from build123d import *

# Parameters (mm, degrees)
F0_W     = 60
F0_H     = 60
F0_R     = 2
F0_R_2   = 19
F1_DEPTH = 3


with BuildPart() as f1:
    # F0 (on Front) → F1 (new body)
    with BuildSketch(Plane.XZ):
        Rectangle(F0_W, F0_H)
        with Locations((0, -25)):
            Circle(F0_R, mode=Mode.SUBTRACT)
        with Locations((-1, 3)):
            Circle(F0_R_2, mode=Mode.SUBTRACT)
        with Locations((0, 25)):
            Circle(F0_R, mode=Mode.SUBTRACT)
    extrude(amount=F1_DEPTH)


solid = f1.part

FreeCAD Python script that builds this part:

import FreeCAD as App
import Part
import Sketcher
from FreeCAD import Vector

doc = App.newDocument("Part")
params = doc.addObject("Spreadsheet::Sheet", "Params")
for row, (alias, value) in enumerate([
    ("sketch1_diameter", "4 mm"),
    ("sketch1_diameter2", "38 mm"),
    ("sketch1_width", "60 mm"),
    ("pad1_length", "3 mm"),
], start=1):
    params.set(f"A{row}", alias)
    params.set(f"B{row}", "=" + value)
    params.setAlias(f"B{row}", alias)

body = doc.addObject("PartDesign::Body", "Body")

# Sketch on XZ plane
sketch1 = body.newObject("Sketcher::SketchObject", "Sketch")
sketch1.AttachmentSupport = (doc.getObject("XZ_Plane"), [""])
sketch1.MapMode = "FlatFace"
sketch1.addGeometry([
    Part.LineSegment(Vector(-30, 30, 0), Vector(-30, -30, 0)),  # 0
    Part.LineSegment(Vector(-30, -30, 0), Vector(30, -30, 0)),  # 1
    Part.LineSegment(Vector(30, -30, 0), Vector(30, 30, 0)),  # 2
    Part.LineSegment(Vector(30, 30, 0), Vector(-30, 30, 0)),  # 3
    Part.Circle(Vector(0, -25, 0), Vector(0, 0, 1), 2),  # 4
    Part.Circle(Vector(-1, 3, 0), Vector(0, 0, 1), 19),  # 5
    Part.Circle(Vector(0, 25, 0), Vector(0, 0, 1), 2),  # 6
], False)
sketch1.addConstraint([
    Sketcher.Constraint("Coincident", 0, 2, 1, 1),
    Sketcher.Constraint("Coincident", 1, 2, 2, 1),
    Sketcher.Constraint("Coincident", 2, 2, 3, 1),
    Sketcher.Constraint("Coincident", 3, 2, 0, 1),
    Sketcher.Constraint("Vertical", 0),
    Sketcher.Constraint("Horizontal", 1),
    Sketcher.Constraint("Vertical", 2),
    Sketcher.Constraint("Horizontal", 3),
    Sketcher.Constraint("Equal", 4, 6),
    Sketcher.Constraint("Symmetric", 4, 3, 6, 3, -1, 1),
    Sketcher.Constraint("Symmetric", 0, 2, 2, 2, -1, 1),
    Sketcher.Constraint("PointOnObject", 4, 3, -2),
    Sketcher.Constraint("Equal", 3, 0),
    Sketcher.Constraint("Diameter", 4, 4.0),
    Sketcher.Constraint("Diameter", 5, 38.0),
    Sketcher.Constraint("DistanceX", 1, 1, 1, 2, 60.0),
    Sketcher.Constraint("DistanceY", 4, 3, -1, 1, 25.0),
    Sketcher.Constraint("DistanceX", 5, 3, -1, 1, 1.0),
    Sketcher.Constraint("DistanceY", -1, 1, 5, 3, 3.0),
])
sketch1.setExpression("Constraints[13]", "Params.sketch1_diameter")
sketch1.setExpression("Constraints[14]", "Params.sketch1_diameter2")
sketch1.setExpression("Constraints[15]", "Params.sketch1_width")
pad1 = body.newObject("PartDesign::Pad", "Pad")
pad1.Profile = sketch1
pad1.setExpression("Length", "Params.pad1_length")

doc.recompute()
